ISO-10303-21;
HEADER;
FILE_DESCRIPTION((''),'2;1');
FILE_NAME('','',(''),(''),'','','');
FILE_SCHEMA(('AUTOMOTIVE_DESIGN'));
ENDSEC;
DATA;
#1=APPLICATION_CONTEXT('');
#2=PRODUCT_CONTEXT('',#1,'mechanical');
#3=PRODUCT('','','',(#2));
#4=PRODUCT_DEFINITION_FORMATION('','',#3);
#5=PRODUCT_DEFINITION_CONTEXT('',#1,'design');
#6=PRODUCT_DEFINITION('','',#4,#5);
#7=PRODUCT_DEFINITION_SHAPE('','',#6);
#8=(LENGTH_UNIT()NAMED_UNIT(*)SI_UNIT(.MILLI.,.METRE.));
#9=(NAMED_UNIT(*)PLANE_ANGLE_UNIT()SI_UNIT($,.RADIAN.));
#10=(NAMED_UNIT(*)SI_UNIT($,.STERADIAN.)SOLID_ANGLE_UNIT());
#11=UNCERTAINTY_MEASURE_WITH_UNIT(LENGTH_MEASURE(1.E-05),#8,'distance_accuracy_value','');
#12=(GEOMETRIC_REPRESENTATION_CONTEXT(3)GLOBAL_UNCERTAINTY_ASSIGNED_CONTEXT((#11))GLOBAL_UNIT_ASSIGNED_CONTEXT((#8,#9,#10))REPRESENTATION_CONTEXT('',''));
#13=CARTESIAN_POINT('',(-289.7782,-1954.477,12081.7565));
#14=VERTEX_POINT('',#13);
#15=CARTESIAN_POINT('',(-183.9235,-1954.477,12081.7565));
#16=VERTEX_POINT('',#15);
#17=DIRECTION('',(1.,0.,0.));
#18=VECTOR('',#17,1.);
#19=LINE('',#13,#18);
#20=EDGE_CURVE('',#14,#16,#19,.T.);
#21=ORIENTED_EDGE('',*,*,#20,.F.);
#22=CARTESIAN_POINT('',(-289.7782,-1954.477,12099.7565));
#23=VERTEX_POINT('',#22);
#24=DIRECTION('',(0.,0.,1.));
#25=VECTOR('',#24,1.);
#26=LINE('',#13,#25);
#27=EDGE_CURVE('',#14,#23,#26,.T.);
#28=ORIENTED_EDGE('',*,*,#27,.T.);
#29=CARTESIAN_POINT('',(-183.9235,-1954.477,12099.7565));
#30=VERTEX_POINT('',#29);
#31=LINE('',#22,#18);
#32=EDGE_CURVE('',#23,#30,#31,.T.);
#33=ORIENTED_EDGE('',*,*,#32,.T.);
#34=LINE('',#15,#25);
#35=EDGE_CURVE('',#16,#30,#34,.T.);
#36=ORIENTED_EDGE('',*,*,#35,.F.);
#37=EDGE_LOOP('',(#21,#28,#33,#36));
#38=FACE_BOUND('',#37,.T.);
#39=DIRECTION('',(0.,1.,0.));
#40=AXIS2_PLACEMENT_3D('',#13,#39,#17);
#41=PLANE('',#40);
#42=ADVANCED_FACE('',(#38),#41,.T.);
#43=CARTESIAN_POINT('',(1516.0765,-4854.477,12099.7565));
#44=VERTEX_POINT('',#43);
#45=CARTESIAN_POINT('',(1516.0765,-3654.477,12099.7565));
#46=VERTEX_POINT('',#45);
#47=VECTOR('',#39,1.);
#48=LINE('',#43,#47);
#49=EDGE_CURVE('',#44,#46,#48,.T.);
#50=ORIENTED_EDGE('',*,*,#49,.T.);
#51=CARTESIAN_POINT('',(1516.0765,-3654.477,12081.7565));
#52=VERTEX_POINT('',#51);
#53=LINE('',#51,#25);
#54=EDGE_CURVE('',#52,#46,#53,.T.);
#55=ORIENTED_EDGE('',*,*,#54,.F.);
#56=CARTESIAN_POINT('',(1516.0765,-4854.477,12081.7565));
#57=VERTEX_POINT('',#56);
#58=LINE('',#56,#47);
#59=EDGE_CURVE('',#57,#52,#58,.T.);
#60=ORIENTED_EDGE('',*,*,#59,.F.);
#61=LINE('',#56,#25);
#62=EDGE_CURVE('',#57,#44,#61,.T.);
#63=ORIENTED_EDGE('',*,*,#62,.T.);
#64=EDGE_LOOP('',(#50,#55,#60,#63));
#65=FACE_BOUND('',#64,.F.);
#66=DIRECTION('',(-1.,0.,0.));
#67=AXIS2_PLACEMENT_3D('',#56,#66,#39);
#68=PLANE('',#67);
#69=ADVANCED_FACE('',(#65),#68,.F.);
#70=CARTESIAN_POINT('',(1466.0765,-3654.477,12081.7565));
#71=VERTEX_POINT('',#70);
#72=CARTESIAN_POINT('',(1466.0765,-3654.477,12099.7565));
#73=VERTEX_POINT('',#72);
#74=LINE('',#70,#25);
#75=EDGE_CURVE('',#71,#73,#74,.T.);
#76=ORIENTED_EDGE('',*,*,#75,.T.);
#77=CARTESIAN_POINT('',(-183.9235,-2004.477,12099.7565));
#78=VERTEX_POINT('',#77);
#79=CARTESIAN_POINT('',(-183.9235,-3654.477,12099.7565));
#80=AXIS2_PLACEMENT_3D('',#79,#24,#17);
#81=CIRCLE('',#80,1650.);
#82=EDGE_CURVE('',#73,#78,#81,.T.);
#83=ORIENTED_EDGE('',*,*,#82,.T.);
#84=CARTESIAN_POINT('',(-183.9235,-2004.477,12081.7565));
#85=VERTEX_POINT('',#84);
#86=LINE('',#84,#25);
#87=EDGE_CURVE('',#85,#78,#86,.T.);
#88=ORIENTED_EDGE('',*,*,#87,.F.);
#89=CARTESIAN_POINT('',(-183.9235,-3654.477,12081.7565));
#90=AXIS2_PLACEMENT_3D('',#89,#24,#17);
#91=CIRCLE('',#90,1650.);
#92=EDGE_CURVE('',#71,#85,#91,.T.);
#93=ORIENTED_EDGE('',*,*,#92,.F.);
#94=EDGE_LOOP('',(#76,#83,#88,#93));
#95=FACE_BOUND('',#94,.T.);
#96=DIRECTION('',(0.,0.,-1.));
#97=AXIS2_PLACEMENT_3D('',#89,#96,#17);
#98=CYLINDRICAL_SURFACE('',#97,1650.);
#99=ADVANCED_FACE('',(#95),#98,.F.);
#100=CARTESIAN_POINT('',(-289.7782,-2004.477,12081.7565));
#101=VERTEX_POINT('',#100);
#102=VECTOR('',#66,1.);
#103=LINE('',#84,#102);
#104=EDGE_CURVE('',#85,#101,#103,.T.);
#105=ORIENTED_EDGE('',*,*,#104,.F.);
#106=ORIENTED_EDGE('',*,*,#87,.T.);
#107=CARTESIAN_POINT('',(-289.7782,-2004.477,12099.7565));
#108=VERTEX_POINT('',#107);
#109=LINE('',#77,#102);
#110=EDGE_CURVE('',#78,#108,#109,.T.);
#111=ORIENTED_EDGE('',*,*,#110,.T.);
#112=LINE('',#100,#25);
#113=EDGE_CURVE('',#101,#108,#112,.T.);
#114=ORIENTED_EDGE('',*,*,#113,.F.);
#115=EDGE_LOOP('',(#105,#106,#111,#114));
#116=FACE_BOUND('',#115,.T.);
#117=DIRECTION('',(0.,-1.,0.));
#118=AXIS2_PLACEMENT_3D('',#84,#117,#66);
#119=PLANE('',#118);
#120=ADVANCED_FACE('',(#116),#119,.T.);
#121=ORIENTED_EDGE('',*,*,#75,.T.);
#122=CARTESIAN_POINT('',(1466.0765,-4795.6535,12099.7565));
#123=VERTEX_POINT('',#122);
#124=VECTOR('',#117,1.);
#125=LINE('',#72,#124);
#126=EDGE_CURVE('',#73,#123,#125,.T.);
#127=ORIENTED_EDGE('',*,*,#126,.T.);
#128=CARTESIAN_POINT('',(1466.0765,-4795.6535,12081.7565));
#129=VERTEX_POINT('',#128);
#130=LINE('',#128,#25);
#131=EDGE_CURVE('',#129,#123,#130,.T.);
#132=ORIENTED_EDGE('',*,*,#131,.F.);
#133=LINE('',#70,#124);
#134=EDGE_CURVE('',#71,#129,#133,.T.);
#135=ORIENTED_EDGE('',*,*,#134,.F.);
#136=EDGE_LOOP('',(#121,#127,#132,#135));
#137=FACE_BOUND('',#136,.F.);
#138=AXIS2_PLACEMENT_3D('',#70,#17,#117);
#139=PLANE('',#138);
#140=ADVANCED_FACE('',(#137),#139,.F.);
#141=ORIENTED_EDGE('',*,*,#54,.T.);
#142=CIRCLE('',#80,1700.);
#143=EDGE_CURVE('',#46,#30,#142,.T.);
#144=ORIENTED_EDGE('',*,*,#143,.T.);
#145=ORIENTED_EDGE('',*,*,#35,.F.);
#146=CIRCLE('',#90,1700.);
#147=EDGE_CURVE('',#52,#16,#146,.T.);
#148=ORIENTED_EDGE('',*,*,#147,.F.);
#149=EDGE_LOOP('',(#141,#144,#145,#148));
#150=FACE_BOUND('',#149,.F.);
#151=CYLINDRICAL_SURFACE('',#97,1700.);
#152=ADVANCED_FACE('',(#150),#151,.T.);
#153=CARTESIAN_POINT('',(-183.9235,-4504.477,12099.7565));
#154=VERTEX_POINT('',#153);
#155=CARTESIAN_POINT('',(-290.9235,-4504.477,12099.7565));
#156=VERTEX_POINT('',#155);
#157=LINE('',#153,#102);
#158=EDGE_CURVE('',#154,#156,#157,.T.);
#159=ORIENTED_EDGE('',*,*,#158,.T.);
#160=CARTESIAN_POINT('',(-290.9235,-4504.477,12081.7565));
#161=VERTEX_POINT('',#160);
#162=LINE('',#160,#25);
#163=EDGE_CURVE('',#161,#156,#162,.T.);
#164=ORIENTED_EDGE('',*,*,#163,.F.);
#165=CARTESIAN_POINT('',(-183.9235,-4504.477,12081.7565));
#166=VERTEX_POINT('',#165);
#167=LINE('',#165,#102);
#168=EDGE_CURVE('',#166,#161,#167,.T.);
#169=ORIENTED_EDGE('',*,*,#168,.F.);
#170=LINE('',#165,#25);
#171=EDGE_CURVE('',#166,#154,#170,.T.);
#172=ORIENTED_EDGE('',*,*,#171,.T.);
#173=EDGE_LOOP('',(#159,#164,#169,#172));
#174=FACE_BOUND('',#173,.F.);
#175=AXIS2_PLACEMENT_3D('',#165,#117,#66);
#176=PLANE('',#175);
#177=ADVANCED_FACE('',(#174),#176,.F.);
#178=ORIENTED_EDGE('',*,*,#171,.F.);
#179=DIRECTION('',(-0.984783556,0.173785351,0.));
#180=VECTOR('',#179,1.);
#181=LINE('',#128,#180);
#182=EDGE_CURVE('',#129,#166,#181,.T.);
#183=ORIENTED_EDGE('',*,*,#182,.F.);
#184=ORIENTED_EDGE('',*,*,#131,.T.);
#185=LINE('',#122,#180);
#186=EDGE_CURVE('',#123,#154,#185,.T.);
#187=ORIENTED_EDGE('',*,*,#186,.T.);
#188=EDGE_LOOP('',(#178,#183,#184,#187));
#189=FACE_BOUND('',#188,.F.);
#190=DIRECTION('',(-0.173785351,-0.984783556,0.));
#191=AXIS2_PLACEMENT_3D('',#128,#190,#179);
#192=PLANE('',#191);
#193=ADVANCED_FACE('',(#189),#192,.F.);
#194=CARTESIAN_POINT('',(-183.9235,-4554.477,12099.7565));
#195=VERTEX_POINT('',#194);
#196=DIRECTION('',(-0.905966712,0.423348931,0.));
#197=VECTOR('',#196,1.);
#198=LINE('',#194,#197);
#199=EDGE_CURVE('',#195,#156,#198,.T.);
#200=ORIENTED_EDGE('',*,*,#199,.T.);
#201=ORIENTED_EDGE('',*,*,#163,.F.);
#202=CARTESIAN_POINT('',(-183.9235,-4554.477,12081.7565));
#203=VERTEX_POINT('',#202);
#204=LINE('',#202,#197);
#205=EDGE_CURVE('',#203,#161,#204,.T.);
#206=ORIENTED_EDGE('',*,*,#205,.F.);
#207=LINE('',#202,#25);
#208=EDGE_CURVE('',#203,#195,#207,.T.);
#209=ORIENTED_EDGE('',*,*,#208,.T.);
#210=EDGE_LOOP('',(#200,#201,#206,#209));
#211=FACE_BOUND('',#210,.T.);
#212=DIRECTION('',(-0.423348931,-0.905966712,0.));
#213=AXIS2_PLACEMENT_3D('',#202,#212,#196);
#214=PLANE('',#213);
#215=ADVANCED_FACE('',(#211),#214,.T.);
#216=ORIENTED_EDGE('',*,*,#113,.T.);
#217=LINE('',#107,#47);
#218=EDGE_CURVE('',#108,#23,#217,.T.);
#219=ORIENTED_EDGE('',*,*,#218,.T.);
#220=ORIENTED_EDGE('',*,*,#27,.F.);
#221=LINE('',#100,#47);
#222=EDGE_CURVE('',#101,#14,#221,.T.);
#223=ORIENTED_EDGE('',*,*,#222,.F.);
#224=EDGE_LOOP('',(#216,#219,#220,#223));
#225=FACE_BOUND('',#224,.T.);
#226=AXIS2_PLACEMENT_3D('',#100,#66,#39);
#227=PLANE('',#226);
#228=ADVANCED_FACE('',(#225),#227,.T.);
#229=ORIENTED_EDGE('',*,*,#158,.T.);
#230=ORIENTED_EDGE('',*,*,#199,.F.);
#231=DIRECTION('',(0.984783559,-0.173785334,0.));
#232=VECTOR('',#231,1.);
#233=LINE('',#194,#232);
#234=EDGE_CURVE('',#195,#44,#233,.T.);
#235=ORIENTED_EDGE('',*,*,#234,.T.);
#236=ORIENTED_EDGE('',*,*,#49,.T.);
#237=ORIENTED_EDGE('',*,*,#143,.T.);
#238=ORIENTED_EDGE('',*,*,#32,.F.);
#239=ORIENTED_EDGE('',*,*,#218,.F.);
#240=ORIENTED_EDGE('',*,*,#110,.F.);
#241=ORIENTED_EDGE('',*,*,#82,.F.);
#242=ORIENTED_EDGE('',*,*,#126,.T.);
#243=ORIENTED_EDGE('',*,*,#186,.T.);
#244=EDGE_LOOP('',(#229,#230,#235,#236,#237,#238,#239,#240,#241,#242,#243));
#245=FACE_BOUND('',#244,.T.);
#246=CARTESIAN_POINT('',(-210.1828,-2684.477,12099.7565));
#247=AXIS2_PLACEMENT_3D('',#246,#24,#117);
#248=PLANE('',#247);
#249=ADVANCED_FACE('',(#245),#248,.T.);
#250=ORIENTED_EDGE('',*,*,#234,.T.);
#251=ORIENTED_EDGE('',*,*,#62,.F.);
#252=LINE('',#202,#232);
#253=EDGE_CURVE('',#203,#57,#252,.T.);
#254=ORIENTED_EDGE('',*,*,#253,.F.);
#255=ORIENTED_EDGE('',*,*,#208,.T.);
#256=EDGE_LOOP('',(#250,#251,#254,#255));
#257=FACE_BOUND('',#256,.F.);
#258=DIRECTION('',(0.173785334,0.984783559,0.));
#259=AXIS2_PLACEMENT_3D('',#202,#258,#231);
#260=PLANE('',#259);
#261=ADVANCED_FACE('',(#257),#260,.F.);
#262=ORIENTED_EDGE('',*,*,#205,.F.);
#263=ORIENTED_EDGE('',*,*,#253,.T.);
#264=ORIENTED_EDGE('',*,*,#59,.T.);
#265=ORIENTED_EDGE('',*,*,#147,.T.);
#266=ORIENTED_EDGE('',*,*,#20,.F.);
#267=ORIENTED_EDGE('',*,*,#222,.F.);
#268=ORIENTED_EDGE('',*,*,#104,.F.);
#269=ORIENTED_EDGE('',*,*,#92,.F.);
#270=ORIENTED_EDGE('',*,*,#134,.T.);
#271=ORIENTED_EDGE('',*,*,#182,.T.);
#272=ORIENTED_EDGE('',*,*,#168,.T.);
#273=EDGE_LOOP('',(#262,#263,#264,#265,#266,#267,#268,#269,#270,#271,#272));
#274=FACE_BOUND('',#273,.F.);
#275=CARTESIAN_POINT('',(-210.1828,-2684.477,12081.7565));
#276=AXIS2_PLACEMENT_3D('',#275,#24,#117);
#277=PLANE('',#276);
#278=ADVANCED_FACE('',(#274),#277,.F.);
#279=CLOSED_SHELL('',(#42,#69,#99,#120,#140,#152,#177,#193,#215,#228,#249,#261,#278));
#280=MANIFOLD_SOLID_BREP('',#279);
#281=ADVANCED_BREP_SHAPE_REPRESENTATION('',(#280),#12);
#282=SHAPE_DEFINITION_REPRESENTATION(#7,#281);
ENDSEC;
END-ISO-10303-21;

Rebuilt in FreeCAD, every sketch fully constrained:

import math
import FreeCAD as App
import Part
import Sketcher
Q = App.Units.Quantity

doc = App.newDocument("Part")
body = doc.addObject("PartDesign::Body", "Body")

sketch1 = body.newObject("Sketcher::SketchObject", "Sketch")
sketch1.AttachmentSupport = (doc.getObject("XY_Plane"), [""])
sketch1.MapMode = "FlatFace"
sketch1.AttachmentOffset = App.Placement(App.Vector(0, 0, 12081.7565), App.Rotation())
sketch1.addGeometry([
    Part.LineSegment(App.Vector(-290, -1954, 0), App.Vector(-290, -2004, 0)),
    Part.LineSegment(App.Vector(-290, -2004, 0), App.Vector(-184, -2004, 0)),
    Part.ArcOfCircle(Part.Circle(App.Vector(-184, -3654, 0), App.Vector(0, 0, 1), 1650), math.radians(0), math.radians(90)),
    Part.LineSegment(App.Vector(1466, -3654, 0), App.Vector(1466, -4796, 0)),
    Part.LineSegment(App.Vector(1466, -4796, 0), App.Vector(-184, -4504, 0)),
    Part.LineSegment(App.Vector(-184, -4504, 0), App.Vector(-291, -4504, 0)),
    Part.LineSegment(App.Vector(-291, -4504, 0), App.Vector(-184, -4554, 0)),
    Part.LineSegment(App.Vector(-184, -4554, 0), App.Vector(1516, -4854, 0)),
    Part.LineSegment(App.Vector(1516, -4854, 0), App.Vector(1516, -3654, 0)),
    Part.ArcOfCircle(Part.Circle(App.Vector(-184, -3654, 0), App.Vector(0, 0, 1), 1700), math.radians(0), math.radians(90)),
    Part.LineSegment(App.Vector(-184, -1954, 0), App.Vector(-290, -1954, 0)),
], False)
sketch1.addConstraint([
    Sketcher.Constraint("Coincident", 0, 2, 1, 1),
    Sketcher.Constraint("Tangent", 1, 2, 2, 2),
    Sketcher.Constraint("Coincident", 2, 1, 3, 1),
    Sketcher.Constraint("Coincident", 3, 2, 4, 1),
    Sketcher.Constraint("Coincident", 4, 2, 5, 1),
    Sketcher.Constraint("Coincident", 5, 2, 6, 1),
    Sketcher.Constraint("Coincident", 6, 2, 7, 1),
    Sketcher.Constraint("Coincident", 7, 2, 8, 1),
    Sketcher.Constraint("Coincident", 8, 2, 9, 1),
    Sketcher.Constraint("Tangent", 9, 2, 10, 1),
    Sketcher.Constraint("Coincident", 10, 2, 0, 1),
    Sketcher.Constraint("Vertical", 0),
    Sketcher.Constraint("Horizontal", 1),
    Sketcher.Constraint("Vertical", 3),
    Sketcher.Constraint("Horizontal", 5),
    Sketcher.Constraint("Vertical", 8),
    Sketcher.Constraint("Horizontal", 10),
    Sketcher.Constraint("Coincident", 9, 3, 2, 3),
    Sketcher.Constraint("Parallel", 4, 7),
    Sketcher.Constraint("Vertical", 1, 2, 4, 2),
    Sketcher.Constraint("Vertical", 4, 2, 6, 2),
    Sketcher.Constraint("Radius", 9, Q("1700 mm")),
    Sketcher.Constraint("DistanceX", 5, 2, 5, 1, Q("107 mm")),
    Sketcher.Constraint("DistanceY", 0, 2, 0, 1, Q("50 mm")),
    Sketcher.Constraint("DistanceY", 6, 2, 4, 2, Q("50 mm")),
    Sketcher.Constraint("DistanceY", 7, 2, 6, 2, Q("300 mm")),
    Sketcher.Constraint("DistanceY", 8, 1, 8, 2, Q("1200 mm")),
    Sketcher.Constraint("DistanceY", 4, 2, 2, 3, Q("850 mm")),
    Sketcher.Constraint("DistanceX", 1, 1, 1, 2, Q("105.8547 mm")),
    Sketcher.Constraint("DistanceY", 3, 2, 3, 1, Q("1141.1765 mm")),
    Sketcher.Constraint("DistanceY", 2, 3, -1, 1, Q("3654.477 mm")),
    Sketcher.Constraint("DistanceX", 2, 3, -1, 1, Q("183.9235 mm")),
])
pad1 = body.newObject("PartDesign::Pad", "Pad")
pad1.Profile = sketch1
pad1.Length = 18

doc.recompute()
